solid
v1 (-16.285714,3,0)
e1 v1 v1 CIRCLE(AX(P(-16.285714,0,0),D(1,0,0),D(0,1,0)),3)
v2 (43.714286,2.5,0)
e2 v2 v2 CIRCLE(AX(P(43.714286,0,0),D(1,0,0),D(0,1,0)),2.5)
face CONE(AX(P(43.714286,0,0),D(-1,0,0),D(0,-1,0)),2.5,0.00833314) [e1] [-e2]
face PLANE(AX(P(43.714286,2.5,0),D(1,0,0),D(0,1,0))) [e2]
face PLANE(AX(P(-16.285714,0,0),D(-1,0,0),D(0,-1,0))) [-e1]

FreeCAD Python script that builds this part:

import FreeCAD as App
import Part
import Sketcher
Q = App.Units.Quantity

doc = App.newDocument("Part")
params = doc.addObject("Spreadsheet::Sheet", "Params")
for row, (alias, value) in enumerate([
    ("sketch1_width", "60 mm"),
    ("sketch1_height", "3 mm"),
    ("sketch1_height2", "2.5 mm"),
    ("revolution_angle", "360 deg"),
], start=1):
    params.set(f"A{row}", alias)
    params.set(f"B{row}", "=" + value)
    params.setAlias(f"B{row}", alias)

body = doc.addObject("PartDesign::Body", "Body")

# Sketch on XY plane
sketch1 = doc.addObject("Sketcher::SketchObject", "Sketch")
body.addObject(sketch1)
sketch1.AttachmentSupport = (doc.XY_Plane, [""])
sketch1.MapMode = "FlatFace"
sketch1.addGeometry(Part.LineSegment(App.Vector(-16.3, 3, 0), App.Vector(-16.3, 0, 0)), False)
sketch1.addGeometry(Part.LineSegment(App.Vector(-16.3, 0, 0), App.Vector(43.7, 0, 0)), False)
sketch1.addGeometry(Part.LineSegment(App.Vector(43.7, 0, 0), App.Vector(43.7, 2.5, 0)), False)
sketch1.addGeometry(Part.LineSegment(App.Vector(43.7, 2.5, 0), App.Vector(-16.3, 3, 0)), False)
sketch1.addConstraint(Sketcher.Constraint("Coincident", 0, 2, 1, 1))
sketch1.addConstraint(Sketcher.Constraint("Coincident", 1, 2, 2, 1))
sketch1.addConstraint(Sketcher.Constraint("Coincident", 2, 2, 3, 1))
sketch1.addConstraint(Sketcher.Constraint("Coincident", 3, 2, 0, 1))
sketch1.addConstraint(Sketcher.Constraint("Vertical", 0))
sketch1.addConstraint(Sketcher.Constraint("Horizontal", 1))
sketch1.addConstraint(Sketcher.Constraint("Vertical", 2))
sketch1.addConstraint(Sketcher.Constraint("PointOnObject", 0, 2, -1))
sketch1.addConstraint(Sketcher.Constraint("DistanceX", 1, 1, 1, 2, Q("60 mm")))
sketch1.addConstraint(Sketcher.Constraint("DistanceY", 0, 2, 0, 1, Q("3 mm")))
sketch1.addConstraint(Sketcher.Constraint("DistanceY", 2, 1, 2, 2, Q("2.5 mm")))
sketch1.addConstraint(Sketcher.Constraint("DistanceX", 0, 2, -1, 1, Q("16.285714 mm")))
sketch1.setExpression("Constraints[8]", "Params.sketch1_width")
sketch1.setExpression("Constraints[9]", "Params.sketch1_height")
sketch1.setExpression("Constraints[10]", "Params.sketch1_height2")
revolution = doc.addObject("PartDesign::Revolution", "Revolution")
body.addObject(revolution)
revolution.Profile = sketch1
revolution.ReferenceAxis = (sketch1, ["H_Axis"])
revolution.setExpression("Angle", "Params.revolution_angle")

doc.recompute()
